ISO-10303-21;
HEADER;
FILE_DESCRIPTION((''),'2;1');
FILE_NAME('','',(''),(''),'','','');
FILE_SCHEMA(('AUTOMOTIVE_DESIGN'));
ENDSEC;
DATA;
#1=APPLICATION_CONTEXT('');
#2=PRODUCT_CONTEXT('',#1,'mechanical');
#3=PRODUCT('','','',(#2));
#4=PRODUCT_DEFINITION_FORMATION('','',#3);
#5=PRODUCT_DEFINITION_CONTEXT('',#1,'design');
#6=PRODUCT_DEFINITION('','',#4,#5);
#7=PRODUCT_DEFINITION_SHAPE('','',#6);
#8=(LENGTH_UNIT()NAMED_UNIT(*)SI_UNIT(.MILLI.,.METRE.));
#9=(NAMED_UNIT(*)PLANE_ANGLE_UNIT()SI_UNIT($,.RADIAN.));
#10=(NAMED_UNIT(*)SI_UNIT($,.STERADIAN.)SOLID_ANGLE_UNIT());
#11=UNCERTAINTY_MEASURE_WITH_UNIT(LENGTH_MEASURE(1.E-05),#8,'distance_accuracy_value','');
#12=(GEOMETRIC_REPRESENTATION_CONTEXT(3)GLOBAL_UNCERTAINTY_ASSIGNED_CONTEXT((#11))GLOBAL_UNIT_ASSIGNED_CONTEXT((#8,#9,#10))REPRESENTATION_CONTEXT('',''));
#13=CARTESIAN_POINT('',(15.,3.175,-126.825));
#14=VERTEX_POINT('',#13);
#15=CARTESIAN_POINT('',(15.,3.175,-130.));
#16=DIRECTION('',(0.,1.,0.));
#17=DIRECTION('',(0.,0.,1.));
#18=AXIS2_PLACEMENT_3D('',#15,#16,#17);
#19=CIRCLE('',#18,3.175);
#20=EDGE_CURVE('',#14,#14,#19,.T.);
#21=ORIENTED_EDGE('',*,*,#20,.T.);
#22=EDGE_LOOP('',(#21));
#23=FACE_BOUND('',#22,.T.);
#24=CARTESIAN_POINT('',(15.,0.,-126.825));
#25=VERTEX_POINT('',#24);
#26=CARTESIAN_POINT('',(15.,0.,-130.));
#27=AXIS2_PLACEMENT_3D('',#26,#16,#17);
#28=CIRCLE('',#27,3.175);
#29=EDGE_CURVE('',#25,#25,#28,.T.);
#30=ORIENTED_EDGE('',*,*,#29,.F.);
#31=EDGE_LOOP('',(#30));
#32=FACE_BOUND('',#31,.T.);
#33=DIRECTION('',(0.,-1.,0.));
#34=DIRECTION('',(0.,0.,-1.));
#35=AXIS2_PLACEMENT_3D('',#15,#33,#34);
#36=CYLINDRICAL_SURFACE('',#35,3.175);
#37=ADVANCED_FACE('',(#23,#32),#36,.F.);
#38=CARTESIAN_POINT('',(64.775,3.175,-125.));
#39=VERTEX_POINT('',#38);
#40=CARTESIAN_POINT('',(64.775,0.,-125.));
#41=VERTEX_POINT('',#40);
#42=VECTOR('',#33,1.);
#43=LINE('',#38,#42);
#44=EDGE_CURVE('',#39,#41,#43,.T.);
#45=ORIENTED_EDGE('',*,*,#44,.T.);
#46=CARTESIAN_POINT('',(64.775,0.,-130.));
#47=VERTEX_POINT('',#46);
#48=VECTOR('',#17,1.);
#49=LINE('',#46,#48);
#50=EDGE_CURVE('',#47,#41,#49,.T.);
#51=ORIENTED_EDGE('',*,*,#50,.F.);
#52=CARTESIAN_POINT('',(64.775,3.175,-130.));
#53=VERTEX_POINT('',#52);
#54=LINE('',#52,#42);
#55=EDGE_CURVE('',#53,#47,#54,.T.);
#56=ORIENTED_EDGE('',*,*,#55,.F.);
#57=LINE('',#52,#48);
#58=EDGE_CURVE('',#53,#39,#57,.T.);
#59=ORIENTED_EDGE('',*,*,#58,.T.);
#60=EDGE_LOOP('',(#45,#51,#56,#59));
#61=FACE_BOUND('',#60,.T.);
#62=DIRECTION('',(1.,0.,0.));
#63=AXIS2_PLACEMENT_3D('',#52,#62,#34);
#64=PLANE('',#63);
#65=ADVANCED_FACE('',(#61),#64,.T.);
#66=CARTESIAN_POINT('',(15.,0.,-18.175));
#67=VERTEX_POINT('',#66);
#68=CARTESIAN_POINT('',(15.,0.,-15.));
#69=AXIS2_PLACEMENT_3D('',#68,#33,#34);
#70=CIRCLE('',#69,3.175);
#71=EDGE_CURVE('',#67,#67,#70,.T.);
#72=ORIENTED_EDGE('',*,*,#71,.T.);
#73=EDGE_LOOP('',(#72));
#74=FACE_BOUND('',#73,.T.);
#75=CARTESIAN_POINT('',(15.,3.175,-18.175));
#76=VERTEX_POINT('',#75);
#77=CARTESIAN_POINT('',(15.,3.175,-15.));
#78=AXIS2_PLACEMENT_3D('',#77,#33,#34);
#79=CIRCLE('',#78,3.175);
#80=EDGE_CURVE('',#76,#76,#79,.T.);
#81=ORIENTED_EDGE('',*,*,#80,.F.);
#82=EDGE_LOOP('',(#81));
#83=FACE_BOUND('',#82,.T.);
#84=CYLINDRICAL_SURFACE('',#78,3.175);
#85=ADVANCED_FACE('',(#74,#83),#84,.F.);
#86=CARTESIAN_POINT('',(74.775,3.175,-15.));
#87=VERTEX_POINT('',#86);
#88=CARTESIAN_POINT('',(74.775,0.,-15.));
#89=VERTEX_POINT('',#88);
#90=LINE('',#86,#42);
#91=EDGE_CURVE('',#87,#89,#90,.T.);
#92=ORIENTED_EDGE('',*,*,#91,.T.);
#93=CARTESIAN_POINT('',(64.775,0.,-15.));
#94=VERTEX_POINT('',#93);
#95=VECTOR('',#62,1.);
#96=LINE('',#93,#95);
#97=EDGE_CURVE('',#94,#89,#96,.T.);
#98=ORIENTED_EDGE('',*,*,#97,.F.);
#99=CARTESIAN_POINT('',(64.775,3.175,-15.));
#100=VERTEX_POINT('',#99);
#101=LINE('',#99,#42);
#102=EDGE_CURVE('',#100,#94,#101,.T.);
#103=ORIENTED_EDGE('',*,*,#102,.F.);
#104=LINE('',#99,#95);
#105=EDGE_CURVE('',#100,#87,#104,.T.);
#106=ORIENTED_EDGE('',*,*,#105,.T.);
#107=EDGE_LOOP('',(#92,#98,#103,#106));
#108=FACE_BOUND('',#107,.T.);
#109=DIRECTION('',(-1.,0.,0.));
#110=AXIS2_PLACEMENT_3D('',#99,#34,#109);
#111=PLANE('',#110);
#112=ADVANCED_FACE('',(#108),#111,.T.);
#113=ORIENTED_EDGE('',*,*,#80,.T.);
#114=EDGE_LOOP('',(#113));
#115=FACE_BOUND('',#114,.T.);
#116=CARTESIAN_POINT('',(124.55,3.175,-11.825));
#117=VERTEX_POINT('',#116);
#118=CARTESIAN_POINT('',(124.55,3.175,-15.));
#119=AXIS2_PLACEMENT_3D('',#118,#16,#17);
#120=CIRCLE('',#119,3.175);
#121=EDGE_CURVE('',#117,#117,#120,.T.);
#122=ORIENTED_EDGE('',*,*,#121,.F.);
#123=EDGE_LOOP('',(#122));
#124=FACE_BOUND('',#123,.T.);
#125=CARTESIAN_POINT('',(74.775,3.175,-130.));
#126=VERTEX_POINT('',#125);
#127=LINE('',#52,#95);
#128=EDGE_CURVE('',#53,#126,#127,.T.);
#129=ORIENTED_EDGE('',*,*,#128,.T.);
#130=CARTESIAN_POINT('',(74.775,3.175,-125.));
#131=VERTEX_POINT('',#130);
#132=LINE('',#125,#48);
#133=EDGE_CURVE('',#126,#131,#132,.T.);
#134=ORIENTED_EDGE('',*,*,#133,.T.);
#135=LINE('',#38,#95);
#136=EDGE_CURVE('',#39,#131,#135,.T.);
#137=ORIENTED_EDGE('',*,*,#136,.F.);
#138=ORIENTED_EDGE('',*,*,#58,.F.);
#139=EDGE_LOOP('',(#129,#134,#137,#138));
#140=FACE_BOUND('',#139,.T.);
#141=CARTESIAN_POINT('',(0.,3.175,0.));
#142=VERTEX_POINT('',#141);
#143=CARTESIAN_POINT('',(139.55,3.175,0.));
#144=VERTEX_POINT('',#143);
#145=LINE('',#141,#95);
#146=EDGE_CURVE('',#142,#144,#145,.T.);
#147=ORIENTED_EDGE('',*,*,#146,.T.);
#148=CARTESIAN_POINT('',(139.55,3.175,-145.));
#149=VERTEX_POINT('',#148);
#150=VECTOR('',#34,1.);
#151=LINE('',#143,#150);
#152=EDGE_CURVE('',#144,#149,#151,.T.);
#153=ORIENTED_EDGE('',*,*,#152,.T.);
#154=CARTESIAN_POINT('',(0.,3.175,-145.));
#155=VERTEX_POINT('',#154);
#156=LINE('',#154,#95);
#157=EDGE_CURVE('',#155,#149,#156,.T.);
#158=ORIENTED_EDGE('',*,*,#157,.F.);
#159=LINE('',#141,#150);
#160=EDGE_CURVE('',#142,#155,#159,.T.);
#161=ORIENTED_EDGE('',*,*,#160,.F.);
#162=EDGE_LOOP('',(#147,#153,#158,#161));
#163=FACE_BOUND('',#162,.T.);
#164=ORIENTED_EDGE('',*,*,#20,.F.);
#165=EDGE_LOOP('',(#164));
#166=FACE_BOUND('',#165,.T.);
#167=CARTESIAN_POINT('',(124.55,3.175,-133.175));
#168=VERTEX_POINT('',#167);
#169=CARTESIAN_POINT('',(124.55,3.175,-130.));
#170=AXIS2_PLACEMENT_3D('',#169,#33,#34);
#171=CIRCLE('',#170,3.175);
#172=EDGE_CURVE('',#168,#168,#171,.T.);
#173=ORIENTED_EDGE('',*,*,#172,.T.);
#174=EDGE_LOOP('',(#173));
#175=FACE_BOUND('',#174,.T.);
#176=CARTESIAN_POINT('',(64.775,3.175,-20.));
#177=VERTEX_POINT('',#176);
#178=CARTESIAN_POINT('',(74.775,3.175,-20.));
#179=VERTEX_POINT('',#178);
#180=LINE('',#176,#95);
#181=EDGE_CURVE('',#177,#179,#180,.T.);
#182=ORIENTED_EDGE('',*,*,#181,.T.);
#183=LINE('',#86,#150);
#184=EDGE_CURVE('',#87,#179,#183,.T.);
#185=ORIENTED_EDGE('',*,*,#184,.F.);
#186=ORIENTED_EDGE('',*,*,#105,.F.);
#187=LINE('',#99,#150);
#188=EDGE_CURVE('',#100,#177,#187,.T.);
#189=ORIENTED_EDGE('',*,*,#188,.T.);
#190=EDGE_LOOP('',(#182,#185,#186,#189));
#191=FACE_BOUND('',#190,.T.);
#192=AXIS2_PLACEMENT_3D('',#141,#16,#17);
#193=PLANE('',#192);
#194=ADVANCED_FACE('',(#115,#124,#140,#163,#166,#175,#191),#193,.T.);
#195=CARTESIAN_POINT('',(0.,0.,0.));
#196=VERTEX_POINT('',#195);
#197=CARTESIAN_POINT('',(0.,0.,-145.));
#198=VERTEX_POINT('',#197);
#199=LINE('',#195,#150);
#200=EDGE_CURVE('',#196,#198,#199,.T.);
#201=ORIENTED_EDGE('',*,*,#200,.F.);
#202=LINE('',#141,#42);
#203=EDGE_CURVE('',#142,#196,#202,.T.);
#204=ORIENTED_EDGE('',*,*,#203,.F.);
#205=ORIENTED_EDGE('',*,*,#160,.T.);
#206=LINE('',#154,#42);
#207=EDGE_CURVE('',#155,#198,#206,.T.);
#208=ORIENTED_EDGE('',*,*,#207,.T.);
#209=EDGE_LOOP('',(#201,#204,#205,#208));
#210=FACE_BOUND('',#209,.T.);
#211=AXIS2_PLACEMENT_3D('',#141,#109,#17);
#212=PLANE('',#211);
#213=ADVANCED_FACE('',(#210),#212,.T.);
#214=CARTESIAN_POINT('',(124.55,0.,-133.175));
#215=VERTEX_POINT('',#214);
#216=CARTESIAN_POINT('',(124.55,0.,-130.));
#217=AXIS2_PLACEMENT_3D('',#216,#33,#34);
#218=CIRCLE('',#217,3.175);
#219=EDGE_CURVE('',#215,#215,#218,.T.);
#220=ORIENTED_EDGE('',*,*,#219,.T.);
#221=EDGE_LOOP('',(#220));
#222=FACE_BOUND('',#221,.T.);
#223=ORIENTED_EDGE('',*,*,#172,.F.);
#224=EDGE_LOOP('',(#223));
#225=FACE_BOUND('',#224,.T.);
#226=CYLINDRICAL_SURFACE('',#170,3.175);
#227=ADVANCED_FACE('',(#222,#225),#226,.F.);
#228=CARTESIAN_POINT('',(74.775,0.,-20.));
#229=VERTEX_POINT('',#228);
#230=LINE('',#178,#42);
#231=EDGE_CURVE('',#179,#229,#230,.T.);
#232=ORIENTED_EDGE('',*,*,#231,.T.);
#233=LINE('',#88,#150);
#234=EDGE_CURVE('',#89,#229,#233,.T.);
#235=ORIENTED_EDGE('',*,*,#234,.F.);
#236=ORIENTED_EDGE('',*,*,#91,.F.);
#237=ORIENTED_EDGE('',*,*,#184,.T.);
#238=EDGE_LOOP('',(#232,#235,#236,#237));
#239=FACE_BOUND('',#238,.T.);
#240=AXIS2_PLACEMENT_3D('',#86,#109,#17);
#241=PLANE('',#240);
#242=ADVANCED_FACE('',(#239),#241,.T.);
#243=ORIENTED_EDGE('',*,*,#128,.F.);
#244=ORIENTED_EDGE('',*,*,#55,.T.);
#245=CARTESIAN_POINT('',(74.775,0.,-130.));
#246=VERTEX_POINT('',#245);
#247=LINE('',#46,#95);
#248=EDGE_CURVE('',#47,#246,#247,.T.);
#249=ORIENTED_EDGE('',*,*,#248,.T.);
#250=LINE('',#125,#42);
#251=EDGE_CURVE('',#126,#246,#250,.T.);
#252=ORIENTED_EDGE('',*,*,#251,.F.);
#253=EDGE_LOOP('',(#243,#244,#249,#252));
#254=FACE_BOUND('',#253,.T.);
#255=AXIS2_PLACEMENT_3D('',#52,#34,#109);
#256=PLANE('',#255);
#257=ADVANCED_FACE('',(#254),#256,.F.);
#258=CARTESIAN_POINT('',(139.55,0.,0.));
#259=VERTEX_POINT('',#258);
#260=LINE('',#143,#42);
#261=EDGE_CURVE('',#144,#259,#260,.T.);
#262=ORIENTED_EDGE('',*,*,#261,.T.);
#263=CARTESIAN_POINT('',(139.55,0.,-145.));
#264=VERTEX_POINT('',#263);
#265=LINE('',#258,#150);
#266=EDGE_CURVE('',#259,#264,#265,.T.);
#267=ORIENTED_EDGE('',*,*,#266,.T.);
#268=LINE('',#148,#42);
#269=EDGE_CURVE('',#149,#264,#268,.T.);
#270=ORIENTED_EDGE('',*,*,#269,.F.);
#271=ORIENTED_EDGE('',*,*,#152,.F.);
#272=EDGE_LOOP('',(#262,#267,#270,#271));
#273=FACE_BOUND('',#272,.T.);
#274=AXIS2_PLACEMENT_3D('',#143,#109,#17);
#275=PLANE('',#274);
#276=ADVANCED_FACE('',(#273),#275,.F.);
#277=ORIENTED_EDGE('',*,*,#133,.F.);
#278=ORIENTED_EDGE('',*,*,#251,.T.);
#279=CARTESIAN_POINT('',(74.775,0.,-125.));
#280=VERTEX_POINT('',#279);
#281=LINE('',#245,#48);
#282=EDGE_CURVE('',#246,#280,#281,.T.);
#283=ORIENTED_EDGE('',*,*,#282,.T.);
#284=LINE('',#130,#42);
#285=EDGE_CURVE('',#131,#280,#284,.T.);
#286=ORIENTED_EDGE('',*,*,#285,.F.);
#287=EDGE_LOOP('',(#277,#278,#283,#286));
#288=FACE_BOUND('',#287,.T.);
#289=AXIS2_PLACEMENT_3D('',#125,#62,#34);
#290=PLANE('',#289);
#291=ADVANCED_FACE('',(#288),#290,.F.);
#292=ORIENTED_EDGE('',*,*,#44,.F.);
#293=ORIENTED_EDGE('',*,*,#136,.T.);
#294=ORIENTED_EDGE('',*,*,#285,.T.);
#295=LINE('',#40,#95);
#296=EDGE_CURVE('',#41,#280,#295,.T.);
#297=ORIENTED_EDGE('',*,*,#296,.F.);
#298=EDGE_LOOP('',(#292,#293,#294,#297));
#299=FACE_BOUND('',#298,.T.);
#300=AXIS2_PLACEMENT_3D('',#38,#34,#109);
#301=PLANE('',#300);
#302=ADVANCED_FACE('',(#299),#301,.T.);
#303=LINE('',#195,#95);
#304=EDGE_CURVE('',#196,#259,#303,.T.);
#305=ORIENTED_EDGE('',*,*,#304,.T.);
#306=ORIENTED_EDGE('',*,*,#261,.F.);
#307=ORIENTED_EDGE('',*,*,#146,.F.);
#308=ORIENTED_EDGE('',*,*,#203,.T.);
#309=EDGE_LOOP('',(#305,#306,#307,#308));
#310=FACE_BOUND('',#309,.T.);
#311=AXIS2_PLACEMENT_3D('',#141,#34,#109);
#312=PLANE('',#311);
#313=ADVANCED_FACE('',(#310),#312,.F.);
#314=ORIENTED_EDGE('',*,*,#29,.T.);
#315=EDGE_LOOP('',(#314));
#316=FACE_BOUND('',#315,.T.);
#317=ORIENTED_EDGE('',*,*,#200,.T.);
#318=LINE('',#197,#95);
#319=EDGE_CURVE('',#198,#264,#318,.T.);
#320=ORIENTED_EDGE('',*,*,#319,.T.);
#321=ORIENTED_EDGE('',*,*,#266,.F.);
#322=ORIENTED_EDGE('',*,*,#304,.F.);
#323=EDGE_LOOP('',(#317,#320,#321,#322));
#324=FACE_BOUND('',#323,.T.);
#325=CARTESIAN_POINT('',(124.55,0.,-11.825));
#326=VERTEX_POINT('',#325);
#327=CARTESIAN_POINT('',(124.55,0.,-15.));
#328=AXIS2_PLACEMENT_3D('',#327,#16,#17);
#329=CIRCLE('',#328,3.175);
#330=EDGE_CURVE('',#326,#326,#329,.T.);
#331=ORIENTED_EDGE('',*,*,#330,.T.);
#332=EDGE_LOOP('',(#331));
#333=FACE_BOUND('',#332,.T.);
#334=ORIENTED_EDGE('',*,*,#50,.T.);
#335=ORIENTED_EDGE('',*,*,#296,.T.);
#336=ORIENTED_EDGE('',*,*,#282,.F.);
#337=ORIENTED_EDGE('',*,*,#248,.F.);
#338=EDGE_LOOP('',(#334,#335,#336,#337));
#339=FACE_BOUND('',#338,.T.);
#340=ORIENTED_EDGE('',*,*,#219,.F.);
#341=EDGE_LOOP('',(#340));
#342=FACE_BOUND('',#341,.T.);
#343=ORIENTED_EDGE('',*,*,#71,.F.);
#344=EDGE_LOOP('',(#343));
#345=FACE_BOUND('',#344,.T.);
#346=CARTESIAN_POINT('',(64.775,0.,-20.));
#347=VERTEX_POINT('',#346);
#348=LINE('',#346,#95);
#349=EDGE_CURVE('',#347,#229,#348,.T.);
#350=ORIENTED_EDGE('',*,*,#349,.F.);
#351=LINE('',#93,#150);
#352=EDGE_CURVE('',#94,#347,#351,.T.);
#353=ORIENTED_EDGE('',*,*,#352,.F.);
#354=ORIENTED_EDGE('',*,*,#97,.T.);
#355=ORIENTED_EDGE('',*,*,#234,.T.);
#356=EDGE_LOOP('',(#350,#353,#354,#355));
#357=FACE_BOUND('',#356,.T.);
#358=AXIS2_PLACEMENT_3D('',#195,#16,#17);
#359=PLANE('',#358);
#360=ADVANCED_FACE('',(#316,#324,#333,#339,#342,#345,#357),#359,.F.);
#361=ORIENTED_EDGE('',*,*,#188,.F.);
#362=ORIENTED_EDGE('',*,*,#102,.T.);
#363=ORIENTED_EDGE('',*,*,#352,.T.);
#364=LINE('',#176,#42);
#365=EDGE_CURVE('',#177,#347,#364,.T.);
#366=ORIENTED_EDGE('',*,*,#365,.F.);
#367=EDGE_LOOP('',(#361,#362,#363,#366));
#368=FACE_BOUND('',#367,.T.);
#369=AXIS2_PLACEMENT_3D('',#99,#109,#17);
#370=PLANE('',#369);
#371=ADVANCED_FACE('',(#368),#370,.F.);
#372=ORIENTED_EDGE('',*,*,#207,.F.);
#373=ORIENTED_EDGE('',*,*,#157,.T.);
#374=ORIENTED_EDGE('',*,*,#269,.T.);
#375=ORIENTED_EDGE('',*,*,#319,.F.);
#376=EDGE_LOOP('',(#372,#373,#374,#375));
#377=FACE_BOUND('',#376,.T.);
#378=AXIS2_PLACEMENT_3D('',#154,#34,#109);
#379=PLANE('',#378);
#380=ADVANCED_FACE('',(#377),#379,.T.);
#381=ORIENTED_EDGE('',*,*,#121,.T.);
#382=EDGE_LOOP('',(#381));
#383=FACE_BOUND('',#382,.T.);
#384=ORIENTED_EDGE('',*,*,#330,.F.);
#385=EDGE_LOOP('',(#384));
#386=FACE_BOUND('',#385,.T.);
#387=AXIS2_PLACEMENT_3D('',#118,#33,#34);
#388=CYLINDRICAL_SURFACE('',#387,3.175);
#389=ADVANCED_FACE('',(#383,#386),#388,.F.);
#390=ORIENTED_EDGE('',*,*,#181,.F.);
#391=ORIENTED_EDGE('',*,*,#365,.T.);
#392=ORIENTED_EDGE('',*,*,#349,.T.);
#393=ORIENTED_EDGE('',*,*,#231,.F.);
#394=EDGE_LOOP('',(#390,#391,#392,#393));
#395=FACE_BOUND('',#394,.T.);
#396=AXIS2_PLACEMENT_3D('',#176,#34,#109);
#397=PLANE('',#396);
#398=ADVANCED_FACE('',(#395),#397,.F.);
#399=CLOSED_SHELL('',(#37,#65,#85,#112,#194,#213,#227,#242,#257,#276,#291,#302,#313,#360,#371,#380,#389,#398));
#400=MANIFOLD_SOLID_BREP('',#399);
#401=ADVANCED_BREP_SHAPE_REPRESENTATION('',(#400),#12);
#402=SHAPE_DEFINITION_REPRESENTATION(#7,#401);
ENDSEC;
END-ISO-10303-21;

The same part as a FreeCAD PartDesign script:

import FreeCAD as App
import Part
import Sketcher
from FreeCAD import Vector
Q = App.Units.Quantity


def add_polygon(sketch, points):
    """Adds a closed chain of lines whose ends are joined by coincident constraints."""
    first, n = sketch.GeometryCount, len(points)
    for a, b in zip(points, points[1:] + points[:1]):
        sketch.addGeometry(Part.LineSegment(App.Vector(*a, 0), App.Vector(*b, 0)), False)
    for i in range(n):
        sketch.addConstraint(Sketcher.Constraint("Coincident", first + i, 2, first + (i + 1) % n, 1))

doc = App.newDocument("Part")
body = doc.addObject("PartDesign::Body", "Body")

sketch1 = body.newObject("Sketcher::SketchObject", "Sketch")
sketch1.AttachmentSupport = (doc.getObject("XZ_Plane"), [""])
sketch1.MapMode = "FlatFace"
add_polygon(sketch1, [(0, -145), (0, 0), (139.6, 0), (139.6, -145)])
sketch1.addGeometry(Part.Circle(Vector(15, -15, 0), Vector(0, 0, 1), 3.2), False)
add_polygon(sketch1, [(74.8, -15), (64.8, -15), (64.8, -20), (74.8, -20)])
sketch1.addGeometry(Part.Circle(Vector(124.5, -15, 0), Vector(0, 0, 1), 3.2), False)
sketch1.addGeometry(Part.Circle(Vector(15, -130, 0), Vector(0, 0, 1), 3.2), False)
add_polygon(sketch1, [(74.8, -125), (64.8, -125), (64.8, -130), (74.8, -130)])
sketch1.addGeometry(Part.Circle(Vector(124.5, -130, 0), Vector(0, 0, 1), 3.2), False)
sketch1.addConstraint(Sketcher.Constraint("Vertical", 0))
sketch1.addConstraint(Sketcher.Constraint("Horizontal", 1))
sketch1.addConstraint(Sketcher.Constraint("Vertical", 2))
sketch1.addConstraint(Sketcher.Constraint("Horizontal", 3))
sketch1.addConstraint(Sketcher.Constraint("Horizontal", 5))
sketch1.addConstraint(Sketcher.Constraint("Vertical", 6))
sketch1.addConstraint(Sketcher.Constraint("Horizontal", 7))
sketch1.addConstraint(Sketcher.Constraint("Vertical", 8))
sketch1.addConstraint(Sketcher.Constraint("Horizontal", 11))
sketch1.addConstraint(Sketcher.Constraint("Vertical", 12))
sketch1.addConstraint(Sketcher.Constraint("Horizontal", 13))
sketch1.addConstraint(Sketcher.Constraint("Vertical", 14))
sketch1.addConstraint(Sketcher.Constraint("Coincident", 0, 2, -1, 1))
sketch1.addConstraint(Sketcher.Constraint("Equal", 4, 9))
sketch1.addConstraint(Sketcher.Constraint("Equal", 9, 10))
sketch1.addConstraint(Sketcher.Constraint("Equal", 10, 15))
sketch1.addConstraint(Sketcher.Constraint("Horizontal", 4, 3, 9, 3))
sketch1.addConstraint(Sketcher.Constraint("Horizontal", 10, 3, 15, 3))
sketch1.addConstraint(Sketcher.Constraint("Horizontal", 9, 3, 5, 2))
sketch1.addConstraint(Sketcher.Constraint("Horizontal", 15, 3, 12, 2))
sketch1.addConstraint(Sketcher.Constraint("Vertical", 4, 3, 10, 3))
sketch1.addConstraint(Sketcher.Constraint("Vertical", 9, 3, 15, 3))
sketch1.addConstraint(Sketcher.Constraint("Vertical", 6, 2, 11, 2))
sketch1.addConstraint(Sketcher.Constraint("Vertical", 8, 2, 13, 2))
sketch1.addConstraint(Sketcher.Constraint("Equal", 8, 12))
sketch1.addConstraint(Sketcher.Constraint("Diameter", 4, Q("6.35 mm")))
sketch1.addConstraint(Sketcher.Constraint("DistanceX", 5, 2, 5, 1, Q("10 mm")))
sketch1.addConstraint(Sketcher.Constraint("DistanceY", 0, 1, 0, 2, Q("145 mm")))
sketch1.addConstraint(Sketcher.Constraint("DistanceY", 6, 2, 6, 1, Q("5 mm")))
sketch1.addConstraint(Sketcher.Constraint("DistanceX", -1, 1, 4, 3, Q("15 mm")))
sketch1.addConstraint(Sketcher.Constraint("DistanceY", 4, 3, -1, 1, Q("15 mm")))
sketch1.addConstraint(Sketcher.Constraint("DistanceY", 10, 3, -1, 1, Q("130 mm")))
sketch1.addConstraint(Sketcher.Constraint("DistanceX", 9, 3, 1, 2, Q("15 mm")))
sketch1.addConstraint(Sketcher.Constraint("DistanceX", 1, 1, 1, 2, Q("139.55 mm")))
sketch1.addConstraint(Sketcher.Constraint("DistanceX", -1, 1, 5, 2, Q("64.775 mm")))
pad1 = body.newObject("PartDesign::Pad", "Pad")
pad1.Profile = sketch1
pad1.Length = 3.175
pad1.Reversed = True

doc.recompute()
